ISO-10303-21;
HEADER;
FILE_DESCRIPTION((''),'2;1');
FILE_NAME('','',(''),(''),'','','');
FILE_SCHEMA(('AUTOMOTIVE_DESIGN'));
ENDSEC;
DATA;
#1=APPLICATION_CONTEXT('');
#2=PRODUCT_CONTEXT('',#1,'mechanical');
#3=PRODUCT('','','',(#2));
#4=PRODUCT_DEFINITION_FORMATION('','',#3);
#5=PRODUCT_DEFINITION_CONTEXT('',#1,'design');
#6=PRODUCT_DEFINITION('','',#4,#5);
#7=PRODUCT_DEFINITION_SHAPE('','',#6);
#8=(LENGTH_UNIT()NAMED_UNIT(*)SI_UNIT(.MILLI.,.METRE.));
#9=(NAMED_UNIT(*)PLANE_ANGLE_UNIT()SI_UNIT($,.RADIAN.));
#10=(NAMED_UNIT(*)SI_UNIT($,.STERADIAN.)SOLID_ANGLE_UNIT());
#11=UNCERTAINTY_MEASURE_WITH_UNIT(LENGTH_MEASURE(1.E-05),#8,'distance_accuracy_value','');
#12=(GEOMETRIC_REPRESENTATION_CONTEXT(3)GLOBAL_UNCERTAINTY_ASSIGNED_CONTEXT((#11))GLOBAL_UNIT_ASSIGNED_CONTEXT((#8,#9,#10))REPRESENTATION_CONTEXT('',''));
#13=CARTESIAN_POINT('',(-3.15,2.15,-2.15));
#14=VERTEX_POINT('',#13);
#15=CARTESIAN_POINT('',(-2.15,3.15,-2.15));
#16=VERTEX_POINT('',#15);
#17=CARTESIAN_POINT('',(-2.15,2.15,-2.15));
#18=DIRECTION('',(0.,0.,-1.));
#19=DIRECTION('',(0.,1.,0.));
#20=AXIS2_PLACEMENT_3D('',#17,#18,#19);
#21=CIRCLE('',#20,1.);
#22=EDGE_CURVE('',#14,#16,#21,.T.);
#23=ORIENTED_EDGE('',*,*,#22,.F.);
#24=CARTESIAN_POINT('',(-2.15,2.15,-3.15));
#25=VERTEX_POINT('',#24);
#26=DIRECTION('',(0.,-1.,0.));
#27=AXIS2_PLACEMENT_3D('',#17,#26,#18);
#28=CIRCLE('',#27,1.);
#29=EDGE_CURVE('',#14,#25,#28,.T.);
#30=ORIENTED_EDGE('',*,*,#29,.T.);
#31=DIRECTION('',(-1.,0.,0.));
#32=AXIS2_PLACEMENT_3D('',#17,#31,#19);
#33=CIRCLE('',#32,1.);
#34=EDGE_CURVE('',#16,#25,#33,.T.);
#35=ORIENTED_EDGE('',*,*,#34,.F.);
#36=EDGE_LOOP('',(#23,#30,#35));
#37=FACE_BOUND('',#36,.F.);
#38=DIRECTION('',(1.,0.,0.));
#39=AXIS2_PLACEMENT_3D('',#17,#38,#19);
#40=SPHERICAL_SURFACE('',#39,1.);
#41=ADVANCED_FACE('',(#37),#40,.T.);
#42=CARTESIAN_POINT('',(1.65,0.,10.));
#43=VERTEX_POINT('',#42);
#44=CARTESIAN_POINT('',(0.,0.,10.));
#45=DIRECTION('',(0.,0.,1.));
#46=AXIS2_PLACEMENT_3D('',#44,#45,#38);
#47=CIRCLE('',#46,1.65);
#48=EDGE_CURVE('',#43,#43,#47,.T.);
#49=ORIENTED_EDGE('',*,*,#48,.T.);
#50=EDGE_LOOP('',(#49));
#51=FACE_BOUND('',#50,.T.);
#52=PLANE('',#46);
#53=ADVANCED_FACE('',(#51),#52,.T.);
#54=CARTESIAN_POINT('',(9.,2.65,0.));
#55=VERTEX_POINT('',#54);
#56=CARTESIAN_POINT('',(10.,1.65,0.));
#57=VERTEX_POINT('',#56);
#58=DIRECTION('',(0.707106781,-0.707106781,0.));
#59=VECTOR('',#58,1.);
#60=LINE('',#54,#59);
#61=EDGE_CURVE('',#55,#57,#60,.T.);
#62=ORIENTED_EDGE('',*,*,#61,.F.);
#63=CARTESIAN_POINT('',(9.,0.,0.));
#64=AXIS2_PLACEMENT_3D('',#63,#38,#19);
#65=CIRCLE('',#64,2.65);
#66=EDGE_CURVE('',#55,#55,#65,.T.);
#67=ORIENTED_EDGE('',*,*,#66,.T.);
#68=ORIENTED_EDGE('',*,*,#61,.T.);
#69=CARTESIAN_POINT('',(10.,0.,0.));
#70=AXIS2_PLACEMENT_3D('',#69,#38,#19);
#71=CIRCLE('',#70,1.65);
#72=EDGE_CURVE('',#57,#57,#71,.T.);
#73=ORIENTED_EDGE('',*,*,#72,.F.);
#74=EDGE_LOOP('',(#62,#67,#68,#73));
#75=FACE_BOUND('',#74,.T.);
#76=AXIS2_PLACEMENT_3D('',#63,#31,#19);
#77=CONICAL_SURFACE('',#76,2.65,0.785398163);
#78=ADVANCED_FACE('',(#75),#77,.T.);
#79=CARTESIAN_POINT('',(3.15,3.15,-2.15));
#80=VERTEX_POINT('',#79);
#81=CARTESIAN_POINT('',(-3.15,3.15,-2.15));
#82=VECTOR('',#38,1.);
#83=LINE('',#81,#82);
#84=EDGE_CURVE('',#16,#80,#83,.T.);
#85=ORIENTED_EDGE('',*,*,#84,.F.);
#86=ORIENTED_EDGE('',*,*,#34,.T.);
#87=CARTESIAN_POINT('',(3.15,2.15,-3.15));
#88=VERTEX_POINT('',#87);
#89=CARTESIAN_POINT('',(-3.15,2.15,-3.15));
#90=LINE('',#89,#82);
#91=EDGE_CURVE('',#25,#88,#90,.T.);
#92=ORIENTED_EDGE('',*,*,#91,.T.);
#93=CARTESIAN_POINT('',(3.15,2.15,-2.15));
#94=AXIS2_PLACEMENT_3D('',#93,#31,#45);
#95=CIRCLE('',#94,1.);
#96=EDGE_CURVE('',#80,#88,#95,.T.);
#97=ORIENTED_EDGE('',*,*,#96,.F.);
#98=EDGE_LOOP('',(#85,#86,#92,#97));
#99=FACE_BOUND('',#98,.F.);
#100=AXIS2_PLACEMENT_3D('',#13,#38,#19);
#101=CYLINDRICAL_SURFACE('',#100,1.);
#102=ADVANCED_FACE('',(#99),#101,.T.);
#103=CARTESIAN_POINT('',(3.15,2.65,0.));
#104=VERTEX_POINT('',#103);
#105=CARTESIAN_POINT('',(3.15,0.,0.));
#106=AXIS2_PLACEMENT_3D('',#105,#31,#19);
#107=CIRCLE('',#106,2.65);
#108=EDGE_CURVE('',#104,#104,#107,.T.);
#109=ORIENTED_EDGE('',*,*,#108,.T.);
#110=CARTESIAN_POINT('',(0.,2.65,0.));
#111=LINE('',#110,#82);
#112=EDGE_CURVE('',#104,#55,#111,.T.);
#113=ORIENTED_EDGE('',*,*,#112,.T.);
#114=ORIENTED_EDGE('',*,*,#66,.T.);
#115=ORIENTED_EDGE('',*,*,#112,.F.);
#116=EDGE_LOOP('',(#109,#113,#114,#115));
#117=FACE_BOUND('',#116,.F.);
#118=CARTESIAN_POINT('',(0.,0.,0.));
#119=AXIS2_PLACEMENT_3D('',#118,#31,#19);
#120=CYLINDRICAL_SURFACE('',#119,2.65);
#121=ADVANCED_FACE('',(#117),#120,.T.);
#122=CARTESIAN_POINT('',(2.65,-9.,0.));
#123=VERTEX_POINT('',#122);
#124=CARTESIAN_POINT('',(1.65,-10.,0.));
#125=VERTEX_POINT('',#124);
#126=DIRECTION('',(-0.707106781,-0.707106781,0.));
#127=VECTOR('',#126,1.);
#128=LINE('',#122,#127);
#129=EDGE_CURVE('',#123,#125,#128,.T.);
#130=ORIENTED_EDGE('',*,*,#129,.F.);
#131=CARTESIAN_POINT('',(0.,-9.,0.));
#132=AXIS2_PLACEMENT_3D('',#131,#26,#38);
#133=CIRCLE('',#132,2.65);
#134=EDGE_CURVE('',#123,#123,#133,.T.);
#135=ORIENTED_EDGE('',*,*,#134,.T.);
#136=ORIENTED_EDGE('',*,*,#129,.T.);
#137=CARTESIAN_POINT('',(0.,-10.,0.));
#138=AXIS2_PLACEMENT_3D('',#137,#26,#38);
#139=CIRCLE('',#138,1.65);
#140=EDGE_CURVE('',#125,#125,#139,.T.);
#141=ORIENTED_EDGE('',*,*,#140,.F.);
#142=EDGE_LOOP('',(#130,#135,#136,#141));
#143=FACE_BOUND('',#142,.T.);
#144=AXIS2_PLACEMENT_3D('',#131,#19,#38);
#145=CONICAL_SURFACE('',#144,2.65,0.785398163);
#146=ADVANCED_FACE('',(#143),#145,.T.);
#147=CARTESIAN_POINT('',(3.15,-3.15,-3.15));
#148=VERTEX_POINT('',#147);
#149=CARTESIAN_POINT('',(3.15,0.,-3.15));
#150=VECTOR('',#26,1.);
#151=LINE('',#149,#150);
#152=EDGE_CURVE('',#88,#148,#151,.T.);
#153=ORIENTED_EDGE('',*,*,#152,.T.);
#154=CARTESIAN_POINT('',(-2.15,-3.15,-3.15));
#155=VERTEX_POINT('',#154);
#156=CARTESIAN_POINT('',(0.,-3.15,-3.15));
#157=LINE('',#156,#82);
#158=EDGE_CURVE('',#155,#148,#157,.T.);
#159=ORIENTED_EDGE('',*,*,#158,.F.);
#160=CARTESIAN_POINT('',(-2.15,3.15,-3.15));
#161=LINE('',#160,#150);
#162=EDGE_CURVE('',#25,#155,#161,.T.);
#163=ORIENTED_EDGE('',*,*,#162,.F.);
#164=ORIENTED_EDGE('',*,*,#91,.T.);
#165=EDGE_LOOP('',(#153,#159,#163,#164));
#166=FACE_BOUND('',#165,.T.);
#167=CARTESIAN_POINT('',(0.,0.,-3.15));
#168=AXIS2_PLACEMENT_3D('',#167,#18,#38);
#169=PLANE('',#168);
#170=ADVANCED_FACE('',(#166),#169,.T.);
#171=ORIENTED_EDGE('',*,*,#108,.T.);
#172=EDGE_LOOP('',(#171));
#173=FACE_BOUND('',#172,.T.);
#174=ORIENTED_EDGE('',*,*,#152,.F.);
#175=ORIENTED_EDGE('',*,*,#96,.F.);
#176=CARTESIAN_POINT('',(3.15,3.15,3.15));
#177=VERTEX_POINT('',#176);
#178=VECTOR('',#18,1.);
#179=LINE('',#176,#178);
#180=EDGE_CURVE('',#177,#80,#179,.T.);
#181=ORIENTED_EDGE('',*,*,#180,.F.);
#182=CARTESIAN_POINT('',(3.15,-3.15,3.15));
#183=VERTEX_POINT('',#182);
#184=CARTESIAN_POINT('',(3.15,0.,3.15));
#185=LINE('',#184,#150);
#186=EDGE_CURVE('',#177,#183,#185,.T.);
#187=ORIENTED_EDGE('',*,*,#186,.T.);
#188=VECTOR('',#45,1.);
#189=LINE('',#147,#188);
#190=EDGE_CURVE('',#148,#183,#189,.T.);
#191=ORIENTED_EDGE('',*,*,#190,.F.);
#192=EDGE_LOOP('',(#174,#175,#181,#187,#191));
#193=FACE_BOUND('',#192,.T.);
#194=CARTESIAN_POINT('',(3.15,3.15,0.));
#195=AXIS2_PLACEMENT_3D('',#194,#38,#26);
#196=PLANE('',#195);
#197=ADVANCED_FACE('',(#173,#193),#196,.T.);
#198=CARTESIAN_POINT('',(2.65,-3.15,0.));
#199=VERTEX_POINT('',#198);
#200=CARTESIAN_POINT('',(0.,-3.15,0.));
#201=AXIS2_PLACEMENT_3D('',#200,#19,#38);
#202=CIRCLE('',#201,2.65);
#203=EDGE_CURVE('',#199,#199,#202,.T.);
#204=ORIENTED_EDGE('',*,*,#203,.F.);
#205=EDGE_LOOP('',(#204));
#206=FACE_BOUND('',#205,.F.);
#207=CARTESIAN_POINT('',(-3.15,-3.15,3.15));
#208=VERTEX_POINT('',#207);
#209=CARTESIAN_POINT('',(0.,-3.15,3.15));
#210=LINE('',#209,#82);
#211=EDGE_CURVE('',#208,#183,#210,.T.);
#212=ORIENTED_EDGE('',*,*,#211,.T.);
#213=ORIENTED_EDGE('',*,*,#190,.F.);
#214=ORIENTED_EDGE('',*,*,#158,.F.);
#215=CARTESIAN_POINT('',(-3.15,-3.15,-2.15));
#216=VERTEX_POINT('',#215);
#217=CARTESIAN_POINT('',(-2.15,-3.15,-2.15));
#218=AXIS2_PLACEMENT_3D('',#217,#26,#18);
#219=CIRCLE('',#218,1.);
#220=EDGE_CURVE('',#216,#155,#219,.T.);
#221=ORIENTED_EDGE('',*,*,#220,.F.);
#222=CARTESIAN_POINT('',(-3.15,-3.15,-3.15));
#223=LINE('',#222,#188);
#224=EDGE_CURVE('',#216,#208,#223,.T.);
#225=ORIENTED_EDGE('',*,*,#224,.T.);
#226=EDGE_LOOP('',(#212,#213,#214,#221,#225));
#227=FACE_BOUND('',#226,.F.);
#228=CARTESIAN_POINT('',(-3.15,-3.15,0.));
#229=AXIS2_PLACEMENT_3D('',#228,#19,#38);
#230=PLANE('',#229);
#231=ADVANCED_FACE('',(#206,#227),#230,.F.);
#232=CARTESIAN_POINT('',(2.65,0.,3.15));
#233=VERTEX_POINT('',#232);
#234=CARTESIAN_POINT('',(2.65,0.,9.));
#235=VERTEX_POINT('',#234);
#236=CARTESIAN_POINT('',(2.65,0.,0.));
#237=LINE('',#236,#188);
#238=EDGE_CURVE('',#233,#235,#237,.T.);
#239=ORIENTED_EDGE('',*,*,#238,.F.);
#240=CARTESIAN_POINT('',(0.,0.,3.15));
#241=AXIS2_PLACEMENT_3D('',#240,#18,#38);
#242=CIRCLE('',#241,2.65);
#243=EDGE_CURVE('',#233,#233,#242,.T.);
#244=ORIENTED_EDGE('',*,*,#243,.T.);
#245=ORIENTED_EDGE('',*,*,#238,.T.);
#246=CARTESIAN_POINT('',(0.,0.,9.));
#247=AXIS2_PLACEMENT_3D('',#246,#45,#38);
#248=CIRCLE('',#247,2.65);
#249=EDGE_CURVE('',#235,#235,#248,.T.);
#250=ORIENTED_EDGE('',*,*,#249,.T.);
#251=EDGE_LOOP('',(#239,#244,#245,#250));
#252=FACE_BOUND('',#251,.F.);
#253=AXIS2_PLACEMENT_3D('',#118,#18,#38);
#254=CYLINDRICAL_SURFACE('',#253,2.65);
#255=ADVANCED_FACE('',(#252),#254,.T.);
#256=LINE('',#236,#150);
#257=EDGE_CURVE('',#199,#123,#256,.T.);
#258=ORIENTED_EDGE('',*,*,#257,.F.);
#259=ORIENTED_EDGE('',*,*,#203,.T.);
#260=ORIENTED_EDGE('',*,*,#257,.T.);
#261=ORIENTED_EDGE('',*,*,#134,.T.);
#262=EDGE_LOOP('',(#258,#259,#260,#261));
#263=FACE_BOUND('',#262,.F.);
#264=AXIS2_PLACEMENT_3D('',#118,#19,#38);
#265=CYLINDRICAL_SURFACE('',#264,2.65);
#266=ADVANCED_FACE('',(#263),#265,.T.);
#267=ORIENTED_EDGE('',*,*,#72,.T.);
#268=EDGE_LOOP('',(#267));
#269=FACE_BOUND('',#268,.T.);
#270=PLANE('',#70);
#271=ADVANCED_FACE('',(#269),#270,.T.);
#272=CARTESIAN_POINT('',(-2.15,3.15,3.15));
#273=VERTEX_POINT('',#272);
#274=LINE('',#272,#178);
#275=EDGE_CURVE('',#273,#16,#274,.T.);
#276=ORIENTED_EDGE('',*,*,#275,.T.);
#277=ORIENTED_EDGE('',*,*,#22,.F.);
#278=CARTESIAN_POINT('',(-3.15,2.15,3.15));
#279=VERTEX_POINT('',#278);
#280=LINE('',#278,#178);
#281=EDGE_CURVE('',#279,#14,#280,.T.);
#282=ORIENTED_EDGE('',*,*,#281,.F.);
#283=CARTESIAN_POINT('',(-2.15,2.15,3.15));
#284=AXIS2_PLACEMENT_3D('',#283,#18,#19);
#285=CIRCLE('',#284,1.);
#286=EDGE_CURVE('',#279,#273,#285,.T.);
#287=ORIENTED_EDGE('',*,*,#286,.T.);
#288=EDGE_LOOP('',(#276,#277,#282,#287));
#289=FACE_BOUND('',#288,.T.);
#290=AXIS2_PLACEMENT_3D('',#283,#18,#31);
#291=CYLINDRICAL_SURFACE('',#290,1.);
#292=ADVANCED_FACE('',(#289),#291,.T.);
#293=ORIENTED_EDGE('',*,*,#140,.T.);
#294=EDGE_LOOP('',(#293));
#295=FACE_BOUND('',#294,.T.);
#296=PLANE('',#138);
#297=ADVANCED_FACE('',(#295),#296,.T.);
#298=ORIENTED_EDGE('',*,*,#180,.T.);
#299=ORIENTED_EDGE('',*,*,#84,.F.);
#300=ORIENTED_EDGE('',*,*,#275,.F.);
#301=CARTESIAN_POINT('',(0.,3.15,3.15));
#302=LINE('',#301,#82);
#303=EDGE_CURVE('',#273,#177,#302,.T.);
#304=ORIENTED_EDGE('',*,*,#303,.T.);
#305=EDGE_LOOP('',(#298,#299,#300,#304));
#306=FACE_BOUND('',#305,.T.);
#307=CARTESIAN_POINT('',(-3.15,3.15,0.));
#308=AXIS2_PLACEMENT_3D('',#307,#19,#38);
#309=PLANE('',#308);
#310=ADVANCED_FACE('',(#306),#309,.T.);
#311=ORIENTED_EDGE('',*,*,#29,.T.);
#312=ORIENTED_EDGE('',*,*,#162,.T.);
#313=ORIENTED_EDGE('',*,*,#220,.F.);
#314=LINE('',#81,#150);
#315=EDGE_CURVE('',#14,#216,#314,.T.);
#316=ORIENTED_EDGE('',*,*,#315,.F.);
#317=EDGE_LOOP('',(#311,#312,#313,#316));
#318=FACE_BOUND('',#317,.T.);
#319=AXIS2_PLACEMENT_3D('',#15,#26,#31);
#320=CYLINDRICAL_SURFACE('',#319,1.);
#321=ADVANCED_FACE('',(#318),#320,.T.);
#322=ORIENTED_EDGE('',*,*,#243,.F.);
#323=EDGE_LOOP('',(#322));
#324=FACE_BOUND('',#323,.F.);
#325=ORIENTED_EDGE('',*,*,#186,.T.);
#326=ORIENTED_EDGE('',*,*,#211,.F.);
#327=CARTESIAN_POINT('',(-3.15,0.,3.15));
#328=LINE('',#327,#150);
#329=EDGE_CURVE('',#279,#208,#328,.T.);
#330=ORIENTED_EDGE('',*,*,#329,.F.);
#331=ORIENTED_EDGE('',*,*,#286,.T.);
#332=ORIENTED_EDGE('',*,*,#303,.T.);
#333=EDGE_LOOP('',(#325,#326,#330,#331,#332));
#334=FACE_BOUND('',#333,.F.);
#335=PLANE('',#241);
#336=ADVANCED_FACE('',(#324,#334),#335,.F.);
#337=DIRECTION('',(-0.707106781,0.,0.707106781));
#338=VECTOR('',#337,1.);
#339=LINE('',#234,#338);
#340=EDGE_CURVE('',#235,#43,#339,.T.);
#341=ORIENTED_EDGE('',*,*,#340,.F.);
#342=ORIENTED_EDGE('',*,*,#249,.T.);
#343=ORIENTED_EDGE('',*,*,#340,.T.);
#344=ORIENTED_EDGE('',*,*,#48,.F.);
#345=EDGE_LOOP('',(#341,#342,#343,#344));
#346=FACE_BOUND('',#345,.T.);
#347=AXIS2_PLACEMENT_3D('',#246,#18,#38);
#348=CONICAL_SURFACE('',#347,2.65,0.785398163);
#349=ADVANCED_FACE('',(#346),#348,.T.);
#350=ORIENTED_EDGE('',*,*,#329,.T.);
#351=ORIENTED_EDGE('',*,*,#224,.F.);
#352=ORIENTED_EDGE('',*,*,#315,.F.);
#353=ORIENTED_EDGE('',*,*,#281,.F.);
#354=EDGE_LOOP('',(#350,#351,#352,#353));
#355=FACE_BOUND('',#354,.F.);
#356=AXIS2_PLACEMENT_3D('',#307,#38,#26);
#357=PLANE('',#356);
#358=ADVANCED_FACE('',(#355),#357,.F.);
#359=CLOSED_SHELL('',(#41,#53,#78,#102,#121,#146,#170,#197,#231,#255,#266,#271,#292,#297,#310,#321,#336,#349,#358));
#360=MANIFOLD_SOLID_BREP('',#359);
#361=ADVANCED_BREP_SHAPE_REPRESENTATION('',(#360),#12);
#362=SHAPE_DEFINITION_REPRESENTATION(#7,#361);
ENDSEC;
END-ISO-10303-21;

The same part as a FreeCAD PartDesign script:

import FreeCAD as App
import Part
import Sketcher

V = App.Vector
Q = App.Units.Quantity


def edges_at(feature, points):
    """Names of the edges that pass closest to the given points."""
    edges = feature.Shape.Edges
    near = lambda p: min(range(len(edges)), key=lambda i: edges[i].distToShape(Part.Vertex(*p))[0])
    return sorted({f"Edge{near(p) + 1}" for p in points})


def add_polygon(sketch, points):
    """Adds a closed chain of lines whose ends are joined by coincident constraints."""
    first, n = sketch.GeometryCount, len(points)
    for a, b in zip(points, points[1:] + points[:1]):
        sketch.addGeometry(Part.LineSegment(App.Vector(*a, 0), App.Vector(*b, 0)), False)
    for i in range(n):
        sketch.addConstraint(Sketcher.Constraint("Coincident", first + i, 2, first + (i + 1) % n, 1))

doc = App.newDocument("Part")
body = doc.addObject("PartDesign::Body", "Body")

# Sketch on XZ plane
sketch1 = doc.addObject("Sketcher::SketchObject", "Sketch")
body.addObject(sketch1)
sketch1.AttachmentSupport = (doc.XZ_Plane, [""])
sketch1.MapMode = "FlatFace"
sketch1.addGeometry(Part.Circle(V(0, 0, 0), V(0, 0, 1), 2.6), False)
sketch1.addConstraint(Sketcher.Constraint("Coincident", 0, 3, -1, 1))
sketch1.addConstraint(Sketcher.Constraint("Diameter", 0, Q("5.3 mm")))
pad1 = doc.addObject("PartDesign::Pad", "Pad")
body.addObject(pad1)
pad1.Profile = sketch1
pad1.Length = 10

# Sketch on XY plane
sketch2 = doc.addObject("Sketcher::SketchObject", "Sketch001")
body.addObject(sketch2)
sketch2.AttachmentSupport = (doc.XY_Plane, [""])
sketch2.MapMode = "FlatFace"
sketch2.addGeometry(Part.Circle(V(0, 0, 0), V(0, 0, 1), 2.6), False)
sketch2.addConstraint(Sketcher.Constraint("Coincident", 0, 3, -1, 1))
sketch2.addConstraint(Sketcher.Constraint("Diameter", 0, Q("5.3 mm")))
pad2 = doc.addObject("PartDesign::Pad", "Pad001")
body.addObject(pad2)
pad2.Profile = sketch2
pad2.Length = 10

# Sketch on YZ plane
sketch3 = doc.addObject("Sketcher::SketchObject", "Sketch002")
body.addObject(sketch3)
sketch3.AttachmentSupport = (doc.YZ_Plane, [""])
sketch3.MapMode = "FlatFace"
sketch3.addGeometry(Part.Circle(V(0, 0, 0), V(0, 0, 1), 2.6), False)
sketch3.addConstraint(Sketcher.Constraint("Coincident", 0, 3, -1, 1))
sketch3.addConstraint(Sketcher.Constraint("Diameter", 0, Q("5.3 mm")))
pad3 = doc.addObject("PartDesign::Pad", "Pad002")
body.addObject(pad3)
pad3.Profile = sketch3
pad3.Length = 10

# Sketch on XY plane
sketch4 = doc.addObject("Sketcher::SketchObject", "Sketch003")
body.addObject(sketch4)
sketch4.AttachmentSupport = (doc.XY_Plane, [""])
sketch4.MapMode = "FlatFace"
add_polygon(sketch4, [(-3, -3), (-3, 3), (3, 3), (3, -3)])  # lines 0-3
sketch4.addConstraint(Sketcher.Constraint("Vertical", 0))
sketch4.addConstraint(Sketcher.Constraint("Horizontal", 1))
sketch4.addConstraint(Sketcher.Constraint("Vertical", 2))
sketch4.addConstraint(Sketcher.Constraint("Horizontal", 3))
sketch4.addConstraint(Sketcher.Constraint("Symmetric", 0, 2, 2, 2, -1, 1))
sketch4.addConstraint(Sketcher.Constraint("Equal", 3, 0))
sketch4.addConstraint(Sketcher.Constraint("DistanceX", 1, 1, 1, 2, Q("6.3 mm")))
pad4 = doc.addObject("PartDesign::Pad", "Pad003")
body.addObject(pad4)
pad4.Profile = sketch4
pad4.Length = 6.3
pad4.Midplane = True
doc.recompute()

fillet = doc.addObject("PartDesign::Fillet", "Fillet")
body.addObject(fillet)
fillet.Base = (pad4, edges_at(pad4, [(0, 3.15, -3.15), (-3.15, 3.15, 0), (-3.15, 0, -3.15)]))
fillet.Radius = 1
doc.recompute()

chamfer = doc.addObject("PartDesign::Chamfer", "Chamfer")
body.addObject(chamfer)
chamfer.Base = (fillet, edges_at(fillet, [(10, -2.65, 0), (-2.65, 0, 10), (-2.65, -10, 0)]))
chamfer.Size = 1

doc.recompute()
